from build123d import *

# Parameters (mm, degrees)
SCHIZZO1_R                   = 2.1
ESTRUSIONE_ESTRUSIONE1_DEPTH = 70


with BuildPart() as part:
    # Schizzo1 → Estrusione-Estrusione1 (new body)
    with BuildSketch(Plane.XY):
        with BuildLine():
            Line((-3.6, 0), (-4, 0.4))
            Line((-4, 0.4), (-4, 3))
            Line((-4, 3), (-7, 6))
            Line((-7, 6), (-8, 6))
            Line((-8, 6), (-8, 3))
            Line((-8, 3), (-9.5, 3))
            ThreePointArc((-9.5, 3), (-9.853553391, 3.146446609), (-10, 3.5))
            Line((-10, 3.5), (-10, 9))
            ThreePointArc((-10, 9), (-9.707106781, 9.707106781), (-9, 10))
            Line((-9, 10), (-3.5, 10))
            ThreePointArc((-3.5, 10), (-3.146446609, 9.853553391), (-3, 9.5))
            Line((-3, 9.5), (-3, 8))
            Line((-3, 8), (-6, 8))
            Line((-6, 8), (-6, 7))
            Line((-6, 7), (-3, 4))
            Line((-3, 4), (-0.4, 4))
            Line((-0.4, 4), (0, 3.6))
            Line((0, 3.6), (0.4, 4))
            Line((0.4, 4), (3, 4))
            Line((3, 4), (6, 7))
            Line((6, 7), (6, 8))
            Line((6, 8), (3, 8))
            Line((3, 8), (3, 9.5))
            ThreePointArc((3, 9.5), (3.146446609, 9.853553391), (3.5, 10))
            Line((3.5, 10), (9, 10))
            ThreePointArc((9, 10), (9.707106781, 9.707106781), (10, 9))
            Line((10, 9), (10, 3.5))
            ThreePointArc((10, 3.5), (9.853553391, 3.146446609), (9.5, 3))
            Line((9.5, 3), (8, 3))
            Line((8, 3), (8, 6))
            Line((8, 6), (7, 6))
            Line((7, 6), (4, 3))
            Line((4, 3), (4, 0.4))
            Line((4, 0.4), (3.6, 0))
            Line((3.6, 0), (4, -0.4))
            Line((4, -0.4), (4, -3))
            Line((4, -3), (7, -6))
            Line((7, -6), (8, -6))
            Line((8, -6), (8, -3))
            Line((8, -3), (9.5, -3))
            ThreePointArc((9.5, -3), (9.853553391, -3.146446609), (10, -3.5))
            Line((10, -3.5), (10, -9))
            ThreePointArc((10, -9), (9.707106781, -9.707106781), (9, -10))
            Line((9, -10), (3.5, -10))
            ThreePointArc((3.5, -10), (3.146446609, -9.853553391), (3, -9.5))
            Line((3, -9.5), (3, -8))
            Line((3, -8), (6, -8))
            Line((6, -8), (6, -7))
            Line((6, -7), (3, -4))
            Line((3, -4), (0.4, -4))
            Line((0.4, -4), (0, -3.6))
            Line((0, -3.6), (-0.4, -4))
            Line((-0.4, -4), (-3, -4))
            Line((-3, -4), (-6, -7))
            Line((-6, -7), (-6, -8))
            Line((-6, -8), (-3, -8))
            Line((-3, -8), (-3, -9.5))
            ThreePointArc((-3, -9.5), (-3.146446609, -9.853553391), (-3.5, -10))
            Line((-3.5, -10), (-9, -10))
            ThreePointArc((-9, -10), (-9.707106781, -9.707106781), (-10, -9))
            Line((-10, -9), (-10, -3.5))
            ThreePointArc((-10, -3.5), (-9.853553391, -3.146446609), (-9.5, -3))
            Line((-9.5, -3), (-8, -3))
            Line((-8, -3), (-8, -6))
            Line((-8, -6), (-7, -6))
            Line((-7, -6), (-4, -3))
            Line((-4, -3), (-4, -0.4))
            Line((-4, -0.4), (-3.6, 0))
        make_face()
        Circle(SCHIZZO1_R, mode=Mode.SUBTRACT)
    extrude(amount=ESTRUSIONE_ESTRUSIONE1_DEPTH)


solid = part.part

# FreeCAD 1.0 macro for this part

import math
import FreeCAD as App
import Part
import Sketcher
from FreeCAD import Vector

doc = App.newDocument("Part")
body = doc.addObject("PartDesign::Body", "Body")

sketch1 = body.newObject("Sketcher::SketchObject", "Sketch")
sketch1.AttachmentSupport = (doc.getObject("XY_Plane"), [""])
sketch1.MapMode = "FlatFace"
sketch1.addGeometry([
    Part.LineSegment(Vector(-4, 0.4, 0), Vector(-3.6, 0, 0)),
    Part.LineSegment(Vector(-3.6, 0, 0), Vector(-4, -0.4, 0)),
    Part.LineSegment(Vector(-4, -0.4, 0), Vector(-4, -3, 0)),
    Part.LineSegment(Vector(-4, -3, 0), Vector(-7, -6, 0)),
    Part.LineSegment(Vector(-7, -6, 0), Vector(-8, -6, 0)),
    Part.LineSegment(Vector(-8, -6, 0), Vector(-8, -3, 0)),
    Part.LineSegment(Vector(-8, -3, 0), Vector(-9.5, -3, 0)),
    Part.ArcOfCircle(Part.Circle(Vector(-9.5, -3.5, 0), Vector(0, 0, 1), 0.5), math.radians(90), math.radians(180)),
    Part.LineSegment(Vector(-10, -3.5, 0), Vector(-10, -9, 0)),
    Part.ArcOfCircle(Part.Circle(Vector(-9, -9, 0), Vector(0, 0, 1), 1), math.radians(-180), math.radians(-90)),
    Part.LineSegment(Vector(-9, -10, 0), Vector(-3.5, -10, 0)),
    Part.ArcOfCircle(Part.Circle(Vector(-3.5, -9.5, 0), Vector(0, 0, 1), 0.5), math.radians(-90), math.radians(0)),
    Part.LineSegment(Vector(-3, -9.5, 0), Vector(-3, -8, 0)),
    Part.LineSegment(Vector(-3, -8, 0), Vector(-6, -8, 0)),
    Part.LineSegment(Vector(-6, -8, 0), Vector(-6, -7, 0)),
    Part.LineSegment(Vector(-6, -7, 0), Vector(-3, -4, 0)),
    Part.LineSegment(Vector(-3, -4, 0), Vector(-0.4, -4, 0)),
    Part.LineSegment(Vector(-0.4, -4, 0), Vector(0, -3.6, 0)),
    Part.LineSegment(Vector(0, -3.6, 0), Vector(0.4, -4, 0)),
    Part.LineSegment(Vector(0.4, -4, 0), Vector(3, -4, 0)),
    Part.LineSegment(Vector(3, -4, 0), Vector(6, -7, 0)),
    Part.LineSegment(Vector(6, -7, 0), Vector(6, -8, 0)),
    Part.LineSegment(Vector(6, -8, 0), Vector(3, -8, 0)),
    Part.LineSegment(Vector(3, -8, 0), Vector(3, -9.5, 0)),
    Part.ArcOfCircle(Part.Circle(Vector(3.5, -9.5, 0), Vector(0, 0, 1), 0.5), math.radians(180), math.radians(270)),
    Part.LineSegment(Vector(3.5, -10, 0), Vector(9, -10, 0)),
    Part.ArcOfCircle(Part.Circle(Vector(9, -9, 0), Vector(0, 0, 1), 1), math.radians(-90), math.radians(0)),
    Part.LineSegment(Vector(10, -9, 0), Vector(10, -3.5, 0)),
    Part.ArcOfCircle(Part.Circle(Vector(9.5, -3.5, 0), Vector(0, 0, 1), 0.5), math.radians(0), math.radians(90)),
    Part.LineSegment(Vector(9.5, -3, 0), Vector(8, -3, 0)),
    Part.LineSegment(Vector(8, -3, 0), Vector(8, -6, 0)),
    Part.LineSegment(Vector(8, -6, 0), Vector(7, -6, 0)),
    Part.LineSegment(Vector(7, -6, 0), Vector(4, -3, 0)),
    Part.LineSegment(Vector(4, -3, 0), Vector(4, -0.4, 0)),
    Part.LineSegment(Vector(4, -0.4, 0), Vector(3.6, 0, 0)),
    Part.LineSegment(Vector(3.6, 0, 0), Vector(4, 0.4, 0)),
    Part.LineSegment(Vector(4, 0.4, 0), Vector(4, 3, 0)),
    Part.LineSegment(Vector(4, 3, 0), Vector(7, 6, 0)),
    Part.LineSegment(Vector(7, 6, 0), Vector(8, 6, 0)),
    Part.LineSegment(Vector(8, 6, 0), Vector(8, 3, 0)),
    Part.LineSegment(Vector(8, 3, 0), Vector(9.5, 3, 0)),
    Part.ArcOfCircle(Part.Circle(Vector(9.5, 3.5, 0), Vector(0, 0, 1), 0.5), math.radians(-90), math.radians(0)),
    Part.LineSegment(Vector(10, 3.5, 0), Vector(10, 9, 0)),
    Part.ArcOfCircle(Part.Circle(Vector(9, 9, 0), Vector(0, 0, 1), 1), math.radians(0), math.radians(90)),
    Part.LineSegment(Vector(9, 10, 0), Vector(3.5, 10, 0)),
    Part.ArcOfCircle(Part.Circle(Vector(3.5, 9.5, 0), Vector(0, 0, 1), 0.5), math.radians(90), math.radians(180)),
    Part.LineSegment(Vector(3, 9.5, 0), Vector(3, 8, 0)),
    Part.LineSegment(Vector(3, 8, 0), Vector(6, 8, 0)),
    Part.LineSegment(Vector(6, 8, 0), Vector(6, 7, 0)),
    Part.LineSegment(Vector(6, 7, 0), Vector(3, 4, 0)),
    Part.LineSegment(Vector(3, 4, 0), Vector(0.4, 4, 0)),
    Part.LineSegment(Vector(0.4, 4, 0), Vector(0, 3.6, 0)),
    Part.LineSegment(Vector(0, 3.6, 0), Vector(-0.4, 4, 0)),
    Part.LineSegment(Vector(-0.4, 4, 0), Vector(-3, 4, 0)),
    Part.LineSegment(Vector(-3, 4, 0), Vector(-6, 7, 0)),
    Part.LineSegment(Vector(-6, 7, 0), Vector(-6, 8, 0)),
    Part.LineSegment(Vector(-6, 8, 0), Vector(-3, 8, 0)),
    Part.LineSegment(Vector(-3, 8, 0), Vector(-3, 9.5, 0)),
    Part.ArcOfCircle(Part.Circle(Vector(-3.5, 9.5, 0), Vector(0, 0, 1), 0.5), math.radians(0), math.radians(90)),
    Part.LineSegment(Vector(-3.5, 10, 0), Vector(-9, 10, 0)),
    Part.ArcOfCircle(Part.Circle(Vector(-9, 9, 0), Vector(0, 0, 1), 1), math.radians(90), math.radians(180)),
    Part.LineSegment(Vector(-10, 9, 0), Vector(-10, 3.5, 0)),
    Part.ArcOfCircle(Part.Circle(Vector(-9.5, 3.5, 0), Vector(0, 0, 1), 0.5), math.radians(180), math.radians(270)),
    Part.LineSegment(Vector(-9.5, 3, 0), Vector(-8, 3, 0)),
    Part.LineSegment(Vector(-8, 3, 0), Vector(-8, 6, 0)),
    Part.LineSegment(Vector(-8, 6, 0), Vector(-7, 6, 0)),
    Part.LineSegment(Vector(-7, 6, 0), Vector(-4, 3, 0)),
    Part.LineSegment(Vector(-4, 3, 0), Vector(-4, 0.4, 0)),
    Part.Circle(Vector(0, 0, 0), Vector(0, 0, 1), 2.1),
], False)
sketch1.addConstraint([
    Sketcher.Constraint("Coincident", 0, 2, 1, 1),
    Sketcher.Constraint("Coincident", 1, 2, 2, 1),
    Sketcher.Constraint("Coincident", 2, 2, 3, 1),
    Sketcher.Constraint("Coincident", 3, 2, 4, 1),
    Sketcher.Constraint("Coincident", 4, 2, 5, 1),
    Sketcher.Constraint("Coincident", 5, 2, 6, 1),
    Sketcher.Constraint("Tangent", 6, 2, 7, 1),
    Sketcher.Constraint("Tangent", 7, 2, 8, 1),
    Sketcher.Constraint("Tangent", 8, 2, 9, 1),
    Sketcher.Constraint("Tangent", 9, 2, 10, 1),
    Sketcher.Constraint("Tangent", 10, 2, 11, 1),
    Sketcher.Constraint("Tangent", 11, 2, 12, 1),
    Sketcher.Constraint("Coincident", 12, 2, 13, 1),
    Sketcher.Constraint("Coincident", 13, 2, 14, 1),
    Sketcher.Constraint("Coincident", 14, 2, 15, 1),
    Sketcher.Constraint("Coincident", 15, 2, 16, 1),
    Sketcher.Constraint("Coincident", 16, 2, 17, 1),
    Sketcher.Constraint("Coincident", 17, 2, 18, 1),
    Sketcher.Constraint("Coincident", 18, 2, 19, 1),
    Sketcher.Constraint("Coincident", 19, 2, 20, 1),
    Sketcher.Constraint("Coincident", 20, 2, 21, 1),
    Sketcher.Constraint("Coincident", 21, 2, 22, 1),
    Sketcher.Constraint("Coincident", 22, 2, 23, 1),
    Sketcher.Constraint("Tangent", 23, 2, 24, 1),
    Sketcher.Constraint("Tangent", 24, 2, 25, 1),
    Sketcher.Constraint("Tangent", 25, 2, 26, 1),
    Sketcher.Constraint("Tangent", 26, 2, 27, 1),
    Sketcher.Constraint("Tangent", 27, 2, 28, 1),
    Sketcher.Constraint("Tangent", 28, 2, 29, 1),
    Sketcher.Constraint("Coincident", 29, 2, 30, 1),
    Sketcher.Constraint("Coincident", 30, 2, 31, 1),
    Sketcher.Constraint("Coincident", 31, 2, 32, 1),
    Sketcher.Constraint("Coincident", 32, 2, 33, 1),
    Sketcher.Constraint("Coincident", 33, 2, 34, 1),
    Sketcher.Constraint("Coincident", 34, 2, 35, 1),
    Sketcher.Constraint("Coincident", 35, 2, 36, 1),
    Sketcher.Constraint("Coincident", 36, 2, 37, 1),
    Sketcher.Constraint("Coincident", 37, 2, 38, 1),
    Sketcher.Constraint("Coincident", 38, 2, 39, 1),
    Sketcher.Constraint("Coincident", 39, 2, 40, 1),
    Sketcher.Constraint("Tangent", 40, 2, 41, 1),
    Sketcher.Constraint("Tangent", 41, 2, 42, 1),
    Sketcher.Constraint("Tangent", 42, 2, 43, 1),
    Sketcher.Constraint("Tangent", 43, 2, 44, 1),
    Sketcher.Constraint("Tangent", 44, 2, 45, 1),
    Sketcher.Constraint("Tangent", 45, 2, 46, 1),
    Sketcher.Constraint("Coincident", 46, 2, 47, 1),
    Sketcher.Constraint("Coincident", 47, 2, 48, 1),
    Sketcher.Constraint("Coincident", 48, 2, 49, 1),
    Sketcher.Constraint("Coincident", 49, 2, 50, 1),
    Sketcher.Constraint("Coincident", 50, 2, 51, 1),
    Sketcher.Constraint("Coincident", 51, 2, 52, 1),
    Sketcher.Constraint("Coincident", 52, 2, 53, 1),
    Sketcher.Constraint("Coincident", 53, 2, 54, 1),
    Sketcher.Constraint("Coincident", 54, 2, 55, 1),
    Sketcher.Constraint("Coincident", 55, 2, 56, 1),
    Sketcher.Constraint("Coincident", 56, 2, 57, 1),
    Sketcher.Constraint("Tangent", 57, 2, 58, 1),
    Sketcher.Constraint("Tangent", 58, 2, 59, 1),
    Sketcher.Constraint("Tangent", 59, 2, 60, 1),
    Sketcher.Constraint("Tangent", 60, 2, 61, 1),
    Sketcher.Constraint("Tangent", 61, 2, 62, 1),
    Sketcher.Constraint("Tangent", 62, 2, 63, 1),
    Sketcher.Constraint("Coincident", 63, 2, 64, 1),
    Sketcher.Constraint("Coincident", 64, 2, 65, 1),
    Sketcher.Constraint("Coincident", 65, 2, 66, 1),
    Sketcher.Constraint("Coincident", 66, 2, 67, 1),
    Sketcher.Constraint("Coincident", 67, 2, 0, 1),
    Sketcher.Constraint("Vertical", 2),
    Sketcher.Constraint("Horizontal", 4),
    Sketcher.Constraint("Vertical", 5),
    Sketcher.Constraint("Horizontal", 6),
    Sketcher.Constraint("Vertical", 8),
    Sketcher.Constraint("Horizontal", 10),
    Sketcher.Constraint("Vertical", 12),
    Sketcher.Constraint("Horizontal", 13),
    Sketcher.Constraint("Vertical", 14),
    Sketcher.Constraint("Horizontal", 16),
    Sketcher.Constraint("Horizontal", 19),
    Sketcher.Constraint("Vertical", 21),
    Sketcher.Constraint("Horizontal", 22),
    Sketcher.Constraint("Vertical", 23),
    Sketcher.Constraint("Horizontal", 25),
    Sketcher.Constraint("Vertical", 27),
    Sketcher.Constraint("Horizontal", 29),
    Sketcher.Constraint("Vertical", 30),
    Sketcher.Constraint("Horizontal", 31),
    Sketcher.Constraint("Vertical", 33),
    Sketcher.Constraint("Vertical", 36),
    Sketcher.Constraint("Horizontal", 38),
    Sketcher.Constraint("Vertical", 39),
    Sketcher.Constraint("Horizontal", 40),
    Sketcher.Constraint("Vertical", 42),
    Sketcher.Constraint("Horizontal", 44),
    Sketcher.Constraint("Vertical", 46),
    Sketcher.Constraint("Horizontal", 47),
    Sketcher.Constraint("Vertical", 48),
    Sketcher.Constraint("Horizontal", 50),
    Sketcher.Constraint("Horizontal", 53),
    Sketcher.Constraint("Vertical", 55),
    Sketcher.Constraint("Horizontal", 56),
    Sketcher.Constraint("Vertical", 57),
    Sketcher.Constraint("Horizontal", 59),
    Sketcher.Constraint("Vertical", 61),
    Sketcher.Constraint("Horizontal", 63),
    Sketcher.Constraint("Vertical", 64),
    Sketcher.Constraint("Horizontal", 65),
    Sketcher.Constraint("Vertical", 67),
    Sketcher.Constraint("Coincident", 68, 3, -1, 1),
    Sketcher.Constraint("Equal", 7, 11),
    Sketcher.Constraint("Equal", 11, 24),
    Sketcher.Constraint("Equal", 9, 26),
    Sketcher.Constraint("Equal", 24, 28),
    Sketcher.Constraint("Equal", 28, 41),
    Sketcher.Constraint("Equal", 26, 43),
    Sketcher.Constraint("Equal", 41, 45),
    Sketcher.Constraint("Equal", 45, 58),
    Sketcher.Constraint("Equal", 43, 60),
    Sketcher.Constraint("Equal", 58, 62),
    Sketcher.Constraint("Symmetric", 7, 3, 41, 3, -1, 1),
    Sketcher.Constraint("Symmetric", 11, 3, 45, 3, -1, 1),
    Sketcher.Constraint("Symmetric", 24, 3, 58, 3, -1, 1),
    Sketcher.Constraint("Symmetric", 28, 3, 62, 3, -1, 1),
    Sketcher.Constraint("Symmetric", 0, 2, 34, 2, -1, 1),
    Sketcher.Constraint("Symmetric", 1, 2, 35, 2, -1, 1),
    Sketcher.Constraint("Symmetric", 3, 2, 37, 2, -1, 1),
    Sketcher.Constraint("Symmetric", 13, 2, 47, 2, -1, 1),
    Sketcher.Constraint("Symmetric", 15, 2, 49, 2, -1, 1),
    Sketcher.Constraint("Symmetric", 17, 2, 51, 2, -1, 1),
    Sketcher.Constraint("Symmetric", 18, 2, 52, 2, -1, 1),
    Sketcher.Constraint("Symmetric", 20, 2, 54, 2, -1, 1),
    Sketcher.Constraint("Symmetric", 30, 2, 64, 2, -1, 1),
    Sketcher.Constraint("Symmetric", 32, 2, 66, 2, -1, 1),
    Sketcher.Constraint("Symmetric", 11, 3, 24, 3, -2),
    Sketcher.Constraint("Symmetric", 7, 3, 28, 3, -2),
    Sketcher.Constraint("Symmetric", 16, 2, 18, 2, -2),
    Sketcher.Constraint("Symmetric", 14, 2, 20, 2, -2),
    Sketcher.Constraint("Symmetric", 4, 2, 30, 2, -2),
    Sketcher.Constraint("Symmetric", 2, 2, 32, 2, -2),
    Sketcher.Constraint("PointOnObject", 0, 2, -1),
    Sketcher.Constraint("PointOnObject", 17, 2, -2),
    Sketcher.Constraint("Perpendicular", 0, 1),
    Sketcher.Constraint("Parallel", 1, 3),
    Sketcher.Constraint("Parallel", 3, 15),
    Sketcher.Constraint("Parallel", 15, 17),
    Sketcher.Constraint("Perpendicular", 17, 18),
    Sketcher.Constraint("Parallel", 18, 20),
    Sketcher.Constraint("Parallel", 20, 32),
    Sketcher.Constraint("Parallel", 32, 34),
    Sketcher.Constraint("Parallel", 35, 37),
    Sketcher.Constraint("Parallel", 37, 49),
    Sketcher.Constraint("Parallel", 49, 51),
    Sketcher.Constraint("Parallel", 52, 54),
    Sketcher.Constraint("Parallel", 54, 66),
    Sketcher.Constraint("Horizontal", 2, 2, 5, 2),
    Sketcher.Constraint("Horizontal", 13, 2, 21, 2),
    Sketcher.Constraint("Horizontal", 47, 2, 55, 2),
    Sketcher.Constraint("Vertical", 12, 2, 15, 2),
    Sketcher.Constraint("Vertical", 30, 2, 38, 2),
    Sketcher.Constraint("Equal", 53, 2),
    Sketcher.Constraint("Equal", 56, 5),
    Sketcher.Constraint("Equal", 59, 8),
    Sketcher.Constraint("Equal", 63, 12),
    Sketcher.Constraint("Equal", 65, 14),
    Sketcher.Constraint("Equal", 1, 17),
    Sketcher.Constraint("Radius", 9, 1.0),
    Sketcher.Constraint("Diameter", 68, 4.2),
    Sketcher.Constraint("Radius", 7, 0.5),
    Sketcher.Constraint("DistanceX", 4, 2, 4, 1, 1.0),
    Sketcher.Constraint("DistanceX", 13, 2, 13, 1, 3.0),
    Sketcher.Constraint("DistanceX", 6, 2, 6, 1, 1.5),
    Sketcher.Constraint("DistanceX", 10, 1, 10, 2, 5.5),
    Sketcher.Constraint("DistanceX", 16, 1, 16, 2, 2.6),
    Sketcher.Constraint("DistanceX", 9, 3, -1, 1, 9.0),
])
pad1 = body.newObject("PartDesign::Pad", "Pad")
pad1.Profile = sketch1
pad1.Length = 70

doc.recompute()
